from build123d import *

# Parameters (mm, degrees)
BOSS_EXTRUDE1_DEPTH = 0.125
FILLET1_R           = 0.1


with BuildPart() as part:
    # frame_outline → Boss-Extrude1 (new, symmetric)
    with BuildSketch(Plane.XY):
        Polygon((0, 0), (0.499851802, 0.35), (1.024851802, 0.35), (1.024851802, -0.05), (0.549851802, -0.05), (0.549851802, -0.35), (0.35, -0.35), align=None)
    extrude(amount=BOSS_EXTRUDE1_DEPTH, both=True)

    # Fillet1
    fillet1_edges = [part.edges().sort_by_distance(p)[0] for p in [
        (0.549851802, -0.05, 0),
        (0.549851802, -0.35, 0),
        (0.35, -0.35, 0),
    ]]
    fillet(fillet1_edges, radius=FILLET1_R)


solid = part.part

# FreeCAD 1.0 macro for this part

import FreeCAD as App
import Part
import Sketcher
from FreeCAD import Vector
Q = App.Units.Quantity


def edges_at(feature, points):
    """Names of the edges that pass closest to the given points."""
    edges = feature.Shape.Edges
    near = lambda p: min(range(len(edges)), key=lambda i: edges[i].distToShape(Part.Vertex(*p))[0])
    return sorted({f"Edge{near(p) + 1}" for p in points})

doc = App.newDocument("Part")
body = doc.addObject("PartDesign::Body", "Body")

# Sketch on XY plane
sketch1 = doc.addObject("Sketcher::SketchObject", "Sketch")
body.addObject(sketch1)
sketch1.AttachmentSupport = (doc.XY_Plane, [""])
sketch1.MapMode = "FlatFace"
sketch1.addGeometry(Part.LineSegment(Vector(0.5, 0.35, 0), Vector(0, 0, 0)), False)
sketch1.addGeometry(Part.LineSegment(Vector(0, 0, 0), Vector(0.35, -0.35, 0)), False)
sketch1.addGeometry(Part.LineSegment(Vector(0.35, -0.35, 0), Vector(0.55, -0.35, 0)), False)
sketch1.addGeometry(Part.LineSegment(Vector(0.55, -0.35, 0), Vector(0.55, -0.05, 0)), False)
sketch1.addGeometry(Part.LineSegment(Vector(0.55, -0.05, 0), Vector(1.02, -0.05, 0)), False)
sketch1.addGeometry(Part.LineSegment(Vector(1.02, -0.05, 0), Vector(1.02, 0.35, 0)), False)
sketch1.addGeometry(Part.LineSegment(Vector(1.02, 0.35, 0), Vector(0.5, 0.35, 0)), False)
sketch1.addConstraint(Sketcher.Constraint("Coincident", 0, 2, 1, 1))
sketch1.addConstraint(Sketcher.Constraint("Coincident", 1, 2, 2, 1))
sketch1.addConstraint(Sketcher.Constraint("Coincident", 2, 2, 3, 1))
sketch1.addConstraint(Sketcher.Constraint("Coincident", 3, 2, 4, 1))
sketch1.addConstraint(Sketcher.Constraint("Coincident", 4, 2, 5, 1))
sketch1.addConstraint(Sketcher.Constraint("Coincident", 5, 2, 6, 1))
sketch1.addConstraint(Sketcher.Constraint("Coincident", 6, 2, 0, 1))
sketch1.addConstraint(Sketcher.Constraint("Horizontal", 2))
sketch1.addConstraint(Sketcher.Constraint("Vertical", 3))
sketch1.addConstraint(Sketcher.Constraint("Horizontal", 4))
sketch1.addConstraint(Sketcher.Constraint("Vertical", 5))
sketch1.addConstraint(Sketcher.Constraint("Horizontal", 6))
sketch1.addConstraint(Sketcher.Constraint("Coincident", 0, 2, -1, 1))
sketch1.addConstraint(Sketcher.Constraint("Angle", 0, Q("-145 deg")))
sketch1.addConstraint(Sketcher.Constraint("Angle", 1, Q("-45 deg")))
sketch1.addConstraint(Sketcher.Constraint("DistanceY", 3, 1, 3, 2, 0.3))
sketch1.addConstraint(Sketcher.Constraint("DistanceY", 5, 1, 5, 2, 0.4))
sketch1.addConstraint(Sketcher.Constraint("DistanceX", 4, 1, 4, 2, 0.475))
sketch1.addConstraint(Sketcher.Constraint("DistanceX", 6, 2, 6, 1, 0.525))
sketch1.addConstraint(Sketcher.Constraint("DistanceX", -1, 1, 1, 2, 0.35))
pad1 = doc.addObject("PartDesign::Pad", "Pad")
body.addObject(pad1)
pad1.Profile = sketch1
pad1.Length = 0.25
pad1.Midplane = True
doc.recompute()

fillet = doc.addObject("PartDesign::Fillet", "Fillet")
body.addObject(fillet)
fillet.Base = (pad1, edges_at(pad1, [(0.55, -0.05, 0), (0.55, -0.35, 0), (0.35, -0.35, 0)]))
fillet.Radius = 0.1

doc.recompute()
